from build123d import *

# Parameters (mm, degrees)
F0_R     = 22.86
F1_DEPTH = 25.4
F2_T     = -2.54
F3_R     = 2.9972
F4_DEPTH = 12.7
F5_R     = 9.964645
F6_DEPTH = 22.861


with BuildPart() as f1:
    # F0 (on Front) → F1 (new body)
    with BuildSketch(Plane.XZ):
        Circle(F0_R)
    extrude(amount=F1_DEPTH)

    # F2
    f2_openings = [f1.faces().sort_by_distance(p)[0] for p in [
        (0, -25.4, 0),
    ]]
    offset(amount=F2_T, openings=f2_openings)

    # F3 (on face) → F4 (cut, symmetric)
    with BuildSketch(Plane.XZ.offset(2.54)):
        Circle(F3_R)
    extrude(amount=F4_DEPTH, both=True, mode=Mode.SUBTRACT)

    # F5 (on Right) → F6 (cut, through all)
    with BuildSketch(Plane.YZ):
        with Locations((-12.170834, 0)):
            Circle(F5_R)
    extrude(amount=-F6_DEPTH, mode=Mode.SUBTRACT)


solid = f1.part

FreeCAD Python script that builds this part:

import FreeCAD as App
import Part
import Sketcher
Q = App.Units.Quantity


def faces_at(feature, points):
    """Names of the faces that lie closest to the given points."""
    faces = feature.Shape.Faces
    near = lambda p: min(range(len(faces)), key=lambda i: faces[i].distToShape(Part.Vertex(*p))[0])
    return sorted({f"Face{near(p) + 1}" for p in points})

doc = App.newDocument("Part")
params = doc.addObject("Spreadsheet::Sheet", "Params")
for row, (alias, value) in enumerate([
    ("sketch1_diameter", "1.8 in"),
    ("pad1_length", "1 in"),
    ("thickness_wall", "0.1 in"),
    ("sketch2_diameter", "0.236 in"),
    ("pocket1_length", "1 in"),
], start=1):
    params.set(f"A{row}", alias)
    params.set(f"B{row}", "=" + value)
    params.setAlias(f"B{row}", alias)

body = doc.addObject("PartDesign::Body", "Body")

# Sketch on XZ plane
sketch1 = doc.addObject("Sketcher::SketchObject", "Sketch")
body.addObject(sketch1)
sketch1.AttachmentSupport = (doc.XZ_Plane, [""])
sketch1.MapMode = "FlatFace"
sketch1.addGeometry(Part.Circle(App.Vector(0, 0, 0), App.Vector(0, 0, 1), 22.86), False)
sketch1.addConstraint([
    Sketcher.Constraint("Coincident", 0, 3, -1, 1),
    Sketcher.Constraint("Diameter", 0, Q("1.8 in")),
])
sketch1.setExpression("Constraints[1]", "Params.sketch1_diameter")
pad1 = doc.addObject("PartDesign::Pad", "Pad")
body.addObject(pad1)
pad1.Profile = sketch1
pad1.setExpression("Length", "Params.pad1_length")
doc.recompute()

thickness = doc.addObject("PartDesign::Thickness", "Thickness")
body.addObject(thickness)
thickness.Base = (pad1, faces_at(pad1, [(0, -25.4, 0)]))
thickness.setExpression("Value", "Params.thickness_wall")
thickness.Reversed = True
thickness.Join = "Arc"

# Sketch on XZ plane
sketch2 = doc.addObject("Sketcher::SketchObject", "Sketch001")
body.addObject(sketch2)
sketch2.AttachmentSupport = (doc.XZ_Plane, [""])
sketch2.MapMode = "FlatFace"
sketch2.AttachmentOffset = App.Placement(App.Vector(0, 0, 0.1 * 25.4), App.Rotation())
sketch2.addGeometry(Part.Circle(App.Vector(0, 0, 0), App.Vector(0, 0, 1), 2.9972), False)
sketch2.addConstraint([
    Sketcher.Constraint("Coincident", 0, 3, -1, 1),
    Sketcher.Constraint("Diameter", 0, Q("0.236 in")),
])
sketch2.setExpression("Constraints[1]", "Params.sketch2_diameter")
pocket1 = doc.addObject("PartDesign::Pocket", "Pocket")
body.addObject(pocket1)
pocket1.Profile = sketch2
pocket1.setExpression("Length", "Params.pocket1_length")
pocket1.Midplane = True

# Sketch on YZ plane
sketch3 = doc.addObject("Sketcher::SketchObject", "Sketch002")
body.addObject(sketch3)
sketch3.AttachmentSupport = (doc.YZ_Plane, [""])
sketch3.MapMode = "FlatFace"
sketch3.addGeometry(Part.Circle(App.Vector(-12.170834, 0, 0), App.Vector(0, 0, 1), 9.964645), False)
sketch3.addConstraint([
    Sketcher.Constraint("PointOnObject", 0, 3, -1),
    Sketcher.Constraint("Diameter", 0, 19.92929),
    Sketcher.Constraint("DistanceX", 0, 3, -1, 1, 12.170834),
])
pocket2 = doc.addObject("PartDesign::Pocket", "Pocket001")
body.addObject(pocket2)
pocket2.Profile = sketch3
pocket2.Type = "ThroughAll"

doc.recompute()
